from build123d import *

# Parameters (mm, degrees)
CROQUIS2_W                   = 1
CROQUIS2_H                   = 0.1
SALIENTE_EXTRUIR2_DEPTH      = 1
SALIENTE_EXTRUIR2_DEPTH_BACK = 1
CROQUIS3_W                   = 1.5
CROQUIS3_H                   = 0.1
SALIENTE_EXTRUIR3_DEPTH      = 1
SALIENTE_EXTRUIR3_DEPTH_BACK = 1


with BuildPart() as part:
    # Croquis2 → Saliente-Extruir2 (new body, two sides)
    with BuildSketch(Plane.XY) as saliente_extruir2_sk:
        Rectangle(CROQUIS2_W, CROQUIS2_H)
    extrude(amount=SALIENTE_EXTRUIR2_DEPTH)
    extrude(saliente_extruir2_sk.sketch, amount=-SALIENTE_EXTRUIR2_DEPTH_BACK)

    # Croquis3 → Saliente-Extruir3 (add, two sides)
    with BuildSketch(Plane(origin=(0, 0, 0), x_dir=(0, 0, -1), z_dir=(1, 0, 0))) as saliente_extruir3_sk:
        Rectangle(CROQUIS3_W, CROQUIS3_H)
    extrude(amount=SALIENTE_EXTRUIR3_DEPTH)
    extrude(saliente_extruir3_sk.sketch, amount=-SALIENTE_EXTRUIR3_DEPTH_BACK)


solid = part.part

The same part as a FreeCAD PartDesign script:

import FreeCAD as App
import Part
import Sketcher
Q = App.Units.Quantity

doc = App.newDocument("Part")
params = doc.addObject("Spreadsheet::Sheet", "Params")
for row, (alias, value) in enumerate([
    ("sketch1_width", "1 mm"),
    ("sketch1_height", "0.1 mm"),
    ("pad1_length", "1 mm"),
    ("pad1_length2", "1 mm"),
    ("sketch2_width", "0.1 mm"),
    ("sketch2_height", "1.5 mm"),
    ("pad2_length", "1 mm"),
    ("pad2_length2", "1 mm"),
], start=1):
    params.set(f"A{row}", alias)
    params.set(f"B{row}", "=" + value)
    params.setAlias(f"B{row}", alias)

body = doc.addObject("PartDesign::Body", "Body")

# Sketch on XY plane
sketch1 = body.newObject("Sketcher::SketchObject", "Sketch")
sketch1.AttachmentSupport = (doc.getObject("XY_Plane"), [""])
sketch1.MapMode = "FlatFace"
sketch1.addGeometry(Part.LineSegment(App.Vector(-0.5, 0.05, 0), App.Vector(-0.5, -0.05, 0)), False)
sketch1.addGeometry(Part.LineSegment(App.Vector(-0.5, -0.05, 0), App.Vector(0.5, -0.05, 0)), False)
sketch1.addGeometry(Part.LineSegment(App.Vector(0.5, -0.05, 0), App.Vector(0.5, 0.05, 0)), False)
sketch1.addGeometry(Part.LineSegment(App.Vector(0.5, 0.05, 0), App.Vector(-0.5, 0.05, 0)), False)
sketch1.addConstraint(Sketcher.Constraint("Coincident", 0, 2, 1, 1))
sketch1.addConstraint(Sketcher.Constraint("Coincident", 1, 2, 2, 1))
sketch1.addConstraint(Sketcher.Constraint("Coincident", 2, 2, 3, 1))
sketch1.addConstraint(Sketcher.Constraint("Coincident", 3, 2, 0, 1))
sketch1.addConstraint(Sketcher.Constraint("Vertical", 0))
sketch1.addConstraint(Sketcher.Constraint("Horizontal", 1))
sketch1.addConstraint(Sketcher.Constraint("Vertical", 2))
sketch1.addConstraint(Sketcher.Constraint("Horizontal", 3))
sketch1.addConstraint(Sketcher.Constraint("Symmetric", 0, 2, 2, 2, -1, 1))
sketch1.addConstraint(Sketcher.Constraint("DistanceX", 1, 1, 1, 2, Q("1 mm")))
sketch1.addConstraint(Sketcher.Constraint("DistanceY", 0, 2, 0, 1, Q("0.1 mm")))
sketch1.setExpression("Constraints[9]", "Params.sketch1_width")
sketch1.setExpression("Constraints[10]", "Params.sketch1_height")
pad1 = body.newObject("PartDesign::Pad", "Pad")
pad1.Profile = sketch1
pad1.Type = "TwoLengths"
pad1.setExpression("Length", "Params.pad1_length")
pad1.setExpression("Length2", "Params.pad1_length2")

# Sketch on YZ plane
sketch2 = body.newObject("Sketcher::SketchObject", "Sketch001")
sketch2.AttachmentSupport = (doc.getObject("YZ_Plane"), [""])
sketch2.MapMode = "FlatFace"
sketch2.addGeometry(Part.LineSegment(App.Vector(0.05, 0.75, 0), App.Vector(-0.05, 0.75, 0)), False)
sketch2.addGeometry(Part.LineSegment(App.Vector(-0.05, 0.75, 0), App.Vector(-0.05, -0.75, 0)), False)
sketch2.addGeometry(Part.LineSegment(App.Vector(-0.05, -0.75, 0), App.Vector(0.05, -0.75, 0)), False)
sketch2.addGeometry(Part.LineSegment(App.Vector(0.05, -0.75, 0), App.Vector(0.05, 0.75, 0)), False)
sketch2.addConstraint(Sketcher.Constraint("Coincident", 0, 2, 1, 1))
sketch2.addConstraint(Sketcher.Constraint("Coincident", 1, 2, 2, 1))
sketch2.addConstraint(Sketcher.Constraint("Coincident", 2, 2, 3, 1))
sketch2.addConstraint(Sketcher.Constraint("Coincident", 3, 2, 0, 1))
sketch2.addConstraint(Sketcher.Constraint("Horizontal", 0))
sketch2.addConstraint(Sketcher.Constraint("Vertical", 1))
sketch2.addConstraint(Sketcher.Constraint("Horizontal", 2))
sketch2.addConstraint(Sketcher.Constraint("Vertical", 3))
sketch2.addConstraint(Sketcher.Constraint("Symmetric", 0, 2, 2, 2, -1, 1))
sketch2.addConstraint(Sketcher.Constraint("DistanceX", 0, 2, 0, 1, Q("0.1 mm")))
sketch2.addConstraint(Sketcher.Constraint("DistanceY", 1, 2, 1, 1, Q("1.5 mm")))
sketch2.setExpression("Constraints[9]", "Params.sketch2_width")
sketch2.setExpression("Constraints[10]", "Params.sketch2_height")
pad2 = body.newObject("PartDesign::Pad", "Pad001")
pad2.Profile = sketch2
pad2.Type = "TwoLengths"
pad2.setExpression("Length", "Params.pad2_length")
pad2.setExpression("Length2", "Params.pad2_length2")

doc.recompute()
